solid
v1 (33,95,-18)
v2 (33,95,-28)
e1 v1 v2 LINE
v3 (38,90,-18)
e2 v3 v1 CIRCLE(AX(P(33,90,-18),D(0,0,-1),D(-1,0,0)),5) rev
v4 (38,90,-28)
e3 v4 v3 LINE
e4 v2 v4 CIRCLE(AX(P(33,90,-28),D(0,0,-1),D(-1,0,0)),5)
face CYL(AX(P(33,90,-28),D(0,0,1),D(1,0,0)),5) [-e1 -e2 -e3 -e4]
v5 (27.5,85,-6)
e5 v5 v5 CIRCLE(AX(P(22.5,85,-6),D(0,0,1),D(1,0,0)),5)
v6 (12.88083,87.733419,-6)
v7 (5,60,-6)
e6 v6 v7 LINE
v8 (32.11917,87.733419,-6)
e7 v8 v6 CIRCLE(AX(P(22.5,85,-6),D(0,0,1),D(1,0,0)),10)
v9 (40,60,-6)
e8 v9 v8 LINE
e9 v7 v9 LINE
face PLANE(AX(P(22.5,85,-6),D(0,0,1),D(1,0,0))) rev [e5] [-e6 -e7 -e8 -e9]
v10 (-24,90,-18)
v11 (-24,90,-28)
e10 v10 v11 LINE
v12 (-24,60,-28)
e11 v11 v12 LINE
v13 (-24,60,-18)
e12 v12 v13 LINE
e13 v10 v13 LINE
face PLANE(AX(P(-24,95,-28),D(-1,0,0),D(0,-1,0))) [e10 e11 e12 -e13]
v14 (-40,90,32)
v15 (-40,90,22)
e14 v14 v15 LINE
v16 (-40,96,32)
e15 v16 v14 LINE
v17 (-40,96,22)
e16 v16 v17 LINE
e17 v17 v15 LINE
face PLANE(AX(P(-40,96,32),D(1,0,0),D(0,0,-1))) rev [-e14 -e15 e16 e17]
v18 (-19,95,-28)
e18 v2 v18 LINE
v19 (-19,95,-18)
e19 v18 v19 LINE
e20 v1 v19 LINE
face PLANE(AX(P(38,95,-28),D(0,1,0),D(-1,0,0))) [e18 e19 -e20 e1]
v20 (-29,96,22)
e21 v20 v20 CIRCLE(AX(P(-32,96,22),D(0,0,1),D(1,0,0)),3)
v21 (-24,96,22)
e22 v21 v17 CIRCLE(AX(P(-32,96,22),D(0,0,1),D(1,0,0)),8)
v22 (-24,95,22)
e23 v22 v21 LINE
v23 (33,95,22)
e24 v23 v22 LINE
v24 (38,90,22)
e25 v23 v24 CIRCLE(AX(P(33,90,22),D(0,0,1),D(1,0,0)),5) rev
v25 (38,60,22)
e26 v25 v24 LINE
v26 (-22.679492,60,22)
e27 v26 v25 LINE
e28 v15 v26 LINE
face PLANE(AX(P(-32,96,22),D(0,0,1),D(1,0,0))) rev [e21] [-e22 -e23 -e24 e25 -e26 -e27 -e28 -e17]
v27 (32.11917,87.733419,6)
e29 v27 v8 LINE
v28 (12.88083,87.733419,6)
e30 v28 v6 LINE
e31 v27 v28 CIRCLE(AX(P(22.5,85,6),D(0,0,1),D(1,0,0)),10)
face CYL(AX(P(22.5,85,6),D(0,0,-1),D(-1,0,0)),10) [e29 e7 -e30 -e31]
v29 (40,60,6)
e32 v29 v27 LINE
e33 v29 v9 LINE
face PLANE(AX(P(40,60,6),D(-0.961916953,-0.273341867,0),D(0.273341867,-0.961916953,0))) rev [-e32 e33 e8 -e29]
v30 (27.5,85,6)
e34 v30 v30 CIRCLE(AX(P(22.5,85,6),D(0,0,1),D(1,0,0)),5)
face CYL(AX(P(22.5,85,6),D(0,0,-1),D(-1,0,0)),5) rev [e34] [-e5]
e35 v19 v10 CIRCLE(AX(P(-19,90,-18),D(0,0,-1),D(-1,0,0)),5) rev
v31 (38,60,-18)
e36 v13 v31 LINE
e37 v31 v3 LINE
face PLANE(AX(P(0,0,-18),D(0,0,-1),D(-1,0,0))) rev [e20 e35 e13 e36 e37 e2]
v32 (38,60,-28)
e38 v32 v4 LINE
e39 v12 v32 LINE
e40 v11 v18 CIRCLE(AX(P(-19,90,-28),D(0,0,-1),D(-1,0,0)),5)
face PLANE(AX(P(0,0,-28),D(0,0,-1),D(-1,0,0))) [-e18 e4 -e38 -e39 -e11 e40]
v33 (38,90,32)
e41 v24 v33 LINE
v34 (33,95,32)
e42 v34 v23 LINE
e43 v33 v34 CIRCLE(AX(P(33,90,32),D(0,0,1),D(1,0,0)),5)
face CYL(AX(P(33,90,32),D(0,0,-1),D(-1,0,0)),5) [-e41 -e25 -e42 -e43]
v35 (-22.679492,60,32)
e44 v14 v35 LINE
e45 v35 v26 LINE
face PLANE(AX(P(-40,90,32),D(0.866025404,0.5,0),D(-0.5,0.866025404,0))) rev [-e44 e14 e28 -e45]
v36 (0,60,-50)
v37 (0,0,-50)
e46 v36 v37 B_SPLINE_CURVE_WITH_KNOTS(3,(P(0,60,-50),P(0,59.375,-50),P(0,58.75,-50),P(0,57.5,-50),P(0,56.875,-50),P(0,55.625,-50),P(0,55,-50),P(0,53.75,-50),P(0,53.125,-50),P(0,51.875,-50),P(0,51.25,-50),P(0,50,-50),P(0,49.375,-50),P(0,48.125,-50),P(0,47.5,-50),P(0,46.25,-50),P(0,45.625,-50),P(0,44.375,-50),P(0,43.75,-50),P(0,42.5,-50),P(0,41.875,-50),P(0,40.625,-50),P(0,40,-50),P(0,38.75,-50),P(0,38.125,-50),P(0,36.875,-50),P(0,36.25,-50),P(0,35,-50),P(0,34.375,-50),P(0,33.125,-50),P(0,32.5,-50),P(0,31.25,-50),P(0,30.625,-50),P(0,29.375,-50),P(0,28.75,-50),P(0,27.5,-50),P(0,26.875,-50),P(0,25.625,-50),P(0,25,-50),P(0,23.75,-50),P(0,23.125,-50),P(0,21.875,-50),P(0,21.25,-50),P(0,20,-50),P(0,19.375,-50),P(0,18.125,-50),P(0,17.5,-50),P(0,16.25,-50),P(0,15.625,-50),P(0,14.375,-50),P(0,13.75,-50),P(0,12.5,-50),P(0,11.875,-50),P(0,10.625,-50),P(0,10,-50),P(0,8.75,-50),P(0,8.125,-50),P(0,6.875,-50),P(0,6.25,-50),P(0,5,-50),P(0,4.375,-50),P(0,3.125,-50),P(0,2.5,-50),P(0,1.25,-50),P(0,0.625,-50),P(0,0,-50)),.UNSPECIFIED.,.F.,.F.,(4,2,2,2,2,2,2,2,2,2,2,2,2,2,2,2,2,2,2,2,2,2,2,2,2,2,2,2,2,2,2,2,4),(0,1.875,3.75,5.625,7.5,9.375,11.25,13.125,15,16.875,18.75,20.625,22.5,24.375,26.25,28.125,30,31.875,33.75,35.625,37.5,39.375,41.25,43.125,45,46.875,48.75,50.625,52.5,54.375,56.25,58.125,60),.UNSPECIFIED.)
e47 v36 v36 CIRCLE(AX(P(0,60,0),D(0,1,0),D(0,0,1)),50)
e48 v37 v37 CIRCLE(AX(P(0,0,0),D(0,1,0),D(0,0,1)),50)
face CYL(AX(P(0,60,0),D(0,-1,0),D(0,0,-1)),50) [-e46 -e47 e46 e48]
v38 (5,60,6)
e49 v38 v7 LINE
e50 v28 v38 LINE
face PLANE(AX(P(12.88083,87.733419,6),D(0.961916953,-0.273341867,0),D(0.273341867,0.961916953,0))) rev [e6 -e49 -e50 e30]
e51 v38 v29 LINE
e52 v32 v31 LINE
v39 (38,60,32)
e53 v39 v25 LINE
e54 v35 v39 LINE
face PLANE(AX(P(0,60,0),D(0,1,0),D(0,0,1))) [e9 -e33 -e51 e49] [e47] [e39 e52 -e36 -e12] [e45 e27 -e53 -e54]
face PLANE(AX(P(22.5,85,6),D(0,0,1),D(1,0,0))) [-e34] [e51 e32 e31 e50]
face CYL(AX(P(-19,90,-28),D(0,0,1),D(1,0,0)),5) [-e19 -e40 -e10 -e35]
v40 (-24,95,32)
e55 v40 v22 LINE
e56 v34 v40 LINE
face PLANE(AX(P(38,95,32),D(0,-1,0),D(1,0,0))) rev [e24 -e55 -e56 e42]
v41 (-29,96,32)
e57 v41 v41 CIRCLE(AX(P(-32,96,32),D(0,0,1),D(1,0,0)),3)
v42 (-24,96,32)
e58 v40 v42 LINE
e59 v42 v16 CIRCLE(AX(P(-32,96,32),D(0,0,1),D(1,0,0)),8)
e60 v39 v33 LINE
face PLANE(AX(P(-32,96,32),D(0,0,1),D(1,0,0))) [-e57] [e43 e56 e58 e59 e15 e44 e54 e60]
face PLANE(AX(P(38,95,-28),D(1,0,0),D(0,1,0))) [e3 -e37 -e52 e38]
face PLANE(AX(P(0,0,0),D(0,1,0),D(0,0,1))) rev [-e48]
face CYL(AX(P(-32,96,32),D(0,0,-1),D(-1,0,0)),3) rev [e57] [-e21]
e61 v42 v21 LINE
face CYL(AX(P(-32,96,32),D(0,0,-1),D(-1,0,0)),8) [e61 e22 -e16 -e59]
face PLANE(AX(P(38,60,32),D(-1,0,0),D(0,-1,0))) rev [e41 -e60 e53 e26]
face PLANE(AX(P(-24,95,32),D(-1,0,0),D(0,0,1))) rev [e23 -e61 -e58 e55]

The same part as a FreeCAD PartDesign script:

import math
import FreeCAD as App
import Part
import Sketcher
from FreeCAD import Vector
Q = App.Units.Quantity


def edges_at(feature, points):
    """Names of the edges that pass closest to the given points."""
    edges = feature.Shape.Edges
    near = lambda p: min(range(len(edges)), key=lambda i: edges[i].distToShape(Part.Vertex(*p))[0])
    return sorted({f"Edge{near(p) + 1}" for p in points})

doc = App.newDocument("Part")
params = doc.addObject("Spreadsheet::Sheet", "Params")
for row, (alias, value) in enumerate([
    ("sketch1_diameter", "100 mm"),
    ("pad1_length", "60 mm"),
    ("sketch2_diameter", "6 mm"),
    ("sketch2_radius", "8 mm"),
    ("sketch2_width", "62 mm"),
    ("sketch2_height", "35 mm"),
    ("sketch2_height2", "1 mm"),
    ("pad2_length", "10 mm"),
    ("sketch3_width", "62 mm"),
    ("sketch3_height", "35 mm"),
    ("pad3_length", "10 mm"),
    ("fillet_radius", "5 mm"),
    ("sketch4_diameter", "10 mm"),
    ("sketch4_radius", "10 mm"),
    ("sketch4_width", "35 mm"),
    ("pad4_length", "12 mm"),
], start=1):
    params.set(f"A{row}", alias)
    params.set(f"B{row}", "=" + value)
    params.setAlias(f"B{row}", alias)

body = doc.addObject("PartDesign::Body", "Body")

# Sketch on XZ plane
sketch1 = body.newObject("Sketcher::SketchObject", "Sketch")
sketch1.AttachmentSupport = (doc.getObject("XZ_Plane"), [""])
sketch1.MapMode = "FlatFace"
sketch1.addGeometry(Part.Circle(Vector(0, 0, 0), Vector(0, 0, 1), 50), False)
sketch1.addConstraint(Sketcher.Constraint("Coincident", 0, 3, -1, 1))
sketch1.addConstraint(Sketcher.Constraint("Diameter", 0, Q("100 mm")))
sketch1.setExpression("Constraints[1]", "Params.sketch1_diameter")
pad1 = body.newObject("PartDesign::Pad", "Pad")
pad1.Profile = sketch1
pad1.setExpression("Length", "Params.pad1_length")
pad1.Reversed = True

# Sketch on XY plane
sketch2 = body.newObject("Sketcher::SketchObject", "Sketch001")
sketch2.AttachmentSupport = (doc.getObject("XY_Plane"), [""])
sketch2.MapMode = "FlatFace"
sketch2.AttachmentOffset = App.Placement(Vector(0, 0, 22), App.Rotation())
sketch2.addGeometry(Part.LineSegment(Vector(38, 60, 0), Vector(38, 95, 0)), False)
sketch2.addGeometry(Part.LineSegment(Vector(38, 95, 0), Vector(-24, 95, 0)), False)
sketch2.addGeometry(Part.LineSegment(Vector(-24, 95, 0), Vector(-24, 96, 0)), False)
sketch2.addGeometry(Part.ArcOfCircle(Part.Circle(Vector(-32, 96, 0), Vector(0, 0, 1), 8), math.radians(0), math.radians(180)), False)
sketch2.addGeometry(Part.LineSegment(Vector(-40, 96, 0), Vector(-40, 90, 0)), False)
sketch2.addGeometry(Part.LineSegment(Vector(-40, 90, 0), Vector(-22.7, 60, 0)), False)
sketch2.addGeometry(Part.LineSegment(Vector(-22.7, 60, 0), Vector(38, 60, 0)), False)
sketch2.addGeometry(Part.Circle(Vector(-32, 96, 0), Vector(0, 0, 1), 3), False)
sketch2.addConstraint(Sketcher.Constraint("Coincident", 0, 2, 1, 1))
sketch2.addConstraint(Sketcher.Constraint("Coincident", 1, 2, 2, 1))
sketch2.addConstraint(Sketcher.Constraint("Tangent", 2, 2, 3, 1))
sketch2.addConstraint(Sketcher.Constraint("Tangent", 3, 2, 4, 1))
sketch2.addConstraint(Sketcher.Constraint("Coincident", 4, 2, 5, 1))
sketch2.addConstraint(Sketcher.Constraint("Coincident", 5, 2, 6, 1))
sketch2.addConstraint(Sketcher.Constraint("Coincident", 6, 2, 0, 1))
sketch2.addConstraint(Sketcher.Constraint("Vertical", 0))
sketch2.addConstraint(Sketcher.Constraint("Horizontal", 1))
sketch2.addConstraint(Sketcher.Constraint("Vertical", 2))
sketch2.addConstraint(Sketcher.Constraint("Vertical", 4))
sketch2.addConstraint(Sketcher.Constraint("Horizontal", 6))
sketch2.addConstraint(Sketcher.Constraint("Coincident", 7, 3, 3, 3))
sketch2.addConstraint(Sketcher.Constraint("Diameter", 7, Q("6 mm")))
sketch2.addConstraint(Sketcher.Constraint("Radius", 3, Q("8 mm")))
sketch2.addConstraint(Sketcher.Constraint("DistanceX", 1, 2, 1, 1, Q("62 mm")))
sketch2.addConstraint(Sketcher.Constraint("DistanceY", 0, 1, 0, 2, Q("35 mm")))
sketch2.addConstraint(Sketcher.Constraint("DistanceY", 2, 1, 2, 2, Q("1 mm")))
sketch2.addConstraint(Sketcher.Constraint("DistanceY", 4, 2, 4, 1, Q("6 mm")))
sketch2.addConstraint(Sketcher.Constraint("Angle", 5, Q("-60 deg")))
sketch2.addConstraint(Sketcher.Constraint("DistanceX", 3, 3, -1, 1, Q("32 mm")))
sketch2.addConstraint(Sketcher.Constraint("DistanceY", -1, 1, 3, 3, Q("96 mm")))
sketch2.setExpression("Constraints[13]", "Params.sketch2_diameter")
sketch2.setExpression("Constraints[14]", "Params.sketch2_radius")
sketch2.setExpression("Constraints[15]", "Params.sketch2_width")
sketch2.setExpression("Constraints[16]", "Params.sketch2_height")
sketch2.setExpression("Constraints[17]", "Params.sketch2_height2")
pad2 = body.newObject("PartDesign::Pad", "Pad001")
pad2.Profile = sketch2
pad2.setExpression("Length", "Params.pad2_length")

# Sketch on XY plane
sketch3 = body.newObject("Sketcher::SketchObject", "Sketch002")
sketch3.AttachmentSupport = (doc.getObject("XY_Plane"), [""])
sketch3.MapMode = "FlatFace"
sketch3.AttachmentOffset = App.Placement(Vector(0, 0, -18), App.Rotation())
sketch3.addGeometry(Part.LineSegment(Vector(-24, 95, 0), Vector(-24, 60, 0)), False)
sketch3.addGeometry(Part.LineSegment(Vector(-24, 60, 0), Vector(38, 60, 0)), False)
sketch3.addGeometry(Part.LineSegment(Vector(38, 60, 0), Vector(38, 95, 0)), False)
sketch3.addGeometry(Part.LineSegment(Vector(38, 95, 0), Vector(-24, 95, 0)), False)
sketch3.addConstraint(Sketcher.Constraint("Coincident", 0, 2, 1, 1))
sketch3.addConstraint(Sketcher.Constraint("Coincident", 1, 2, 2, 1))
sketch3.addConstraint(Sketcher.Constraint("Coincident", 2, 2, 3, 1))
sketch3.addConstraint(Sketcher.Constraint("Coincident", 3, 2, 0, 1))
sketch3.addConstraint(Sketcher.Constraint("Vertical", 0))
sketch3.addConstraint(Sketcher.Constraint("Horizontal", 1))
sketch3.addConstraint(Sketcher.Constraint("Vertical", 2))
sketch3.addConstraint(Sketcher.Constraint("Horizontal", 3))
sketch3.addConstraint(Sketcher.Constraint("DistanceX", 1, 1, 1, 2, Q("62 mm")))
sketch3.addConstraint(Sketcher.Constraint("DistanceY", 0, 2, 0, 1, Q("35 mm")))
sketch3.addConstraint(Sketcher.Constraint("DistanceX", 0, 2, -1, 1, Q("24 mm")))
sketch3.addConstraint(Sketcher.Constraint("DistanceY", -1, 1, 0, 2, Q("60 mm")))
sketch3.setExpression("Constraints[8]", "Params.sketch3_width")
sketch3.setExpression("Constraints[9]", "Params.sketch3_height")
pad3 = body.newObject("PartDesign::Pad", "Pad002")
pad3.Profile = sketch3
pad3.setExpression("Length", "Params.pad3_length")
pad3.Reversed = True
doc.recompute()

fillet = body.newObject("PartDesign::Fillet", "Fillet")
fillet.Base = (pad3, edges_at(pad3, [(38, 95, 27), (38, 95, -23), (-24, 95, -23)]))
fillet.setExpression("Radius", "Params.fillet_radius")

# Sketch on XY plane
sketch4 = body.newObject("Sketcher::SketchObject", "Sketch003")
sketch4.AttachmentSupport = (doc.getObject("XY_Plane"), [""])
sketch4.MapMode = "FlatFace"
sketch4.addGeometry(Part.LineSegment(Vector(13, 88, 0), Vector(5, 60, 0)), False)
sketch4.addGeometry(Part.LineSegment(Vector(5, 60, 0), Vector(40, 60, 0)), False)
sketch4.addGeometry(Part.LineSegment(Vector(40, 60, 0), Vector(32, 88, 0)), False)
sketch4.addGeometry(Part.ArcOfCircle(Part.Circle(Vector(22, 85, 0), Vector(0, 0, 1), 10), math.radians(16), math.radians(164)), False)
sketch4.addGeometry(Part.Circle(Vector(22, 85, 0), Vector(0, 0, 1), 5), False)
sketch4.addConstraint(Sketcher.Constraint("Coincident", 0, 2, 1, 1))
sketch4.addConstraint(Sketcher.Constraint("Coincident", 1, 2, 2, 1))
sketch4.addConstraint(Sketcher.Constraint("Tangent", 2, 2, 3, 1))
sketch4.addConstraint(Sketcher.Constraint("Tangent", 3, 2, 0, 1))
sketch4.addConstraint(Sketcher.Constraint("Horizontal", 1))
sketch4.addConstraint(Sketcher.Constraint("Coincident", 4, 3, 3, 3))
sketch4.addConstraint(Sketcher.Constraint("Horizontal", 2, 2, 3, 2))
sketch4.addConstraint(Sketcher.Constraint("Diameter", 4, Q("10 mm")))
sketch4.addConstraint(Sketcher.Constraint("Radius", 3, Q("10 mm")))
sketch4.addConstraint(Sketcher.Constraint("DistanceX", 1, 1, 1, 2, Q("35 mm")))
sketch4.addConstraint(Sketcher.Constraint("DistanceY", -1, 1, 3, 3, Q("85 mm")))
sketch4.addConstraint(Sketcher.Constraint("DistanceX", -1, 1, 0, 2, Q("5 mm")))
sketch4.addConstraint(Sketcher.Constraint("DistanceY", -1, 1, 0, 2, Q("60 mm")))
sketch4.setExpression("Constraints[7]", "Params.sketch4_diameter")
sketch4.setExpression("Constraints[8]", "Params.sketch4_radius")
sketch4.setExpression("Constraints[9]", "Params.sketch4_width")
pad4 = body.newObject("PartDesign::Pad", "Pad003")
pad4.Profile = sketch4
pad4.setExpression("Length", "Params.pad4_length")
pad4.Midplane = True

doc.recompute()
